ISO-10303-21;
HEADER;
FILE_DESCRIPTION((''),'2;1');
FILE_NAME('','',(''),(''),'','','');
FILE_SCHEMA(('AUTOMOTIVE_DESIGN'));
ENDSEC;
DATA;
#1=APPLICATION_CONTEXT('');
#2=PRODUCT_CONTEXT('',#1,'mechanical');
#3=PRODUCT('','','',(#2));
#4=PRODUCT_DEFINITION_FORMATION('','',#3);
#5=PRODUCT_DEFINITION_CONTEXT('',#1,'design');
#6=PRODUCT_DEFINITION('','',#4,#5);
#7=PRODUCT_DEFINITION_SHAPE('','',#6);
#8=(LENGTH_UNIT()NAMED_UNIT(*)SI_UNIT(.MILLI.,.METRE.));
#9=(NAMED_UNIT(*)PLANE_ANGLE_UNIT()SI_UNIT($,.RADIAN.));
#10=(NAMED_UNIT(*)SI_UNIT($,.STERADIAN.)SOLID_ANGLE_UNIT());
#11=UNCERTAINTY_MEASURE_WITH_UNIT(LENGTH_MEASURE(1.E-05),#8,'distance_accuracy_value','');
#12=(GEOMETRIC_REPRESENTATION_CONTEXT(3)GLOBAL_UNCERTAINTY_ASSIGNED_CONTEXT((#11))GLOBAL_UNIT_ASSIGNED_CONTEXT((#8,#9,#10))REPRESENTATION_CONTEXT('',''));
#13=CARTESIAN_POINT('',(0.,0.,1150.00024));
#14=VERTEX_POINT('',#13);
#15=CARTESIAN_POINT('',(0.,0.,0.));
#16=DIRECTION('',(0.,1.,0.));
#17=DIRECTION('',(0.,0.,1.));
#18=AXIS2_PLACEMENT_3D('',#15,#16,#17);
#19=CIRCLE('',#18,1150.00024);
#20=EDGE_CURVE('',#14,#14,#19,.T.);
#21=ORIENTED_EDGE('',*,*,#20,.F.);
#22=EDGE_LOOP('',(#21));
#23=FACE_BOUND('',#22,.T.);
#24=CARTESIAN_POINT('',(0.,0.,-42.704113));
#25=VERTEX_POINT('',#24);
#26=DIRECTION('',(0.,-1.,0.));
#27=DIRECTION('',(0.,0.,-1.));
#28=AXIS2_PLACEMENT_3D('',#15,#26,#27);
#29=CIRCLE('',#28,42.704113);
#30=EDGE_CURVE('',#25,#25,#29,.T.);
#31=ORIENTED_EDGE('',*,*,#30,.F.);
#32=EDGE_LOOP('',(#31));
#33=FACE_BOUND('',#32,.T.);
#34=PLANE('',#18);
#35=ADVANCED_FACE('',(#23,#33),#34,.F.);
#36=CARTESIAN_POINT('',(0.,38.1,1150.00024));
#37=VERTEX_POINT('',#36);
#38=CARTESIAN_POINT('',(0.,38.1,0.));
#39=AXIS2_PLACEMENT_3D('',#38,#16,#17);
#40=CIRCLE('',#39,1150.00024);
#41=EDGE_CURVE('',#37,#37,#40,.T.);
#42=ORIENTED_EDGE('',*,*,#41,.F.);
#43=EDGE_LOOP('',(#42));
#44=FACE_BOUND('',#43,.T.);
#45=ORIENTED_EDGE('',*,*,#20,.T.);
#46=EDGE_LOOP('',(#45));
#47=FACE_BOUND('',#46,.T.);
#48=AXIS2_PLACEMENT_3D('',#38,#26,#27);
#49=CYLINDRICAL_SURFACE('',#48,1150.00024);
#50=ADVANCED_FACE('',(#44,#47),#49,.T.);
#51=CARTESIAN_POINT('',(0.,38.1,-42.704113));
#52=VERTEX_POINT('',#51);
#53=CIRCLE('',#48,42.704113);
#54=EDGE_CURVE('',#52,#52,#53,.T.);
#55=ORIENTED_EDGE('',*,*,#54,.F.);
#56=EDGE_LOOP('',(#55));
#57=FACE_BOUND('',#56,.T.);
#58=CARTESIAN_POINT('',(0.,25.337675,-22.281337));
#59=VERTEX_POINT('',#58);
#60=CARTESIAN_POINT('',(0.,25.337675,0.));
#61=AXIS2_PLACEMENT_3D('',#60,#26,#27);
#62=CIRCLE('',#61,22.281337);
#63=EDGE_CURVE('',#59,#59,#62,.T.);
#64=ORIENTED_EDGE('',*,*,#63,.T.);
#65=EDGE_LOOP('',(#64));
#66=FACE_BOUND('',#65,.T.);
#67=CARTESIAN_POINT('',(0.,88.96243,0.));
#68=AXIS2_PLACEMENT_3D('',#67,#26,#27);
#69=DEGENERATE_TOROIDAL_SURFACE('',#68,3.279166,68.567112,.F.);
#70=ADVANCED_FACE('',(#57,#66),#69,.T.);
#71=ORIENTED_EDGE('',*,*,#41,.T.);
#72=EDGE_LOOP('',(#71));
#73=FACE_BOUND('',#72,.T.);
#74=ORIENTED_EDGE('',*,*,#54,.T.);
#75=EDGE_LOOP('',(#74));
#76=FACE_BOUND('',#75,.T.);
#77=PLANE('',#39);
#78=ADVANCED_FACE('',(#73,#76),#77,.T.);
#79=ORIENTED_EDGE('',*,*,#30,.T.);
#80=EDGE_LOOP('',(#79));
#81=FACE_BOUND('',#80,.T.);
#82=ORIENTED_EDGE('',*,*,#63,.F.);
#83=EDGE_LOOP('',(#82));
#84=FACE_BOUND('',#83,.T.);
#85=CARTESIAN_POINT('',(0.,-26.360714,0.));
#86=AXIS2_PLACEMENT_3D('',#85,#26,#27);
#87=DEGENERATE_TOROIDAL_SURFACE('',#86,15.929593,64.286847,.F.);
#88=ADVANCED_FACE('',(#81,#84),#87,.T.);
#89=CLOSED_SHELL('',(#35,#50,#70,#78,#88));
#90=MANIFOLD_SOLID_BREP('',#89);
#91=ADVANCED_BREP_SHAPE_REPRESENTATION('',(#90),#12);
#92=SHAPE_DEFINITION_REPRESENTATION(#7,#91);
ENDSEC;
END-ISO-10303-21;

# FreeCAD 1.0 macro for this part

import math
import FreeCAD as App
import Part
import Sketcher
Q = App.Units.Quantity

doc = App.newDocument("Part")
body = doc.addObject("PartDesign::Body", "Body")

# Sketch on XZ plane
sketch1 = body.newObject("Sketcher::SketchObject", "Sketch")
sketch1.AttachmentSupport = (doc.getObject("XZ_Plane"), [""])
sketch1.MapMode = "FlatFace"
sketch1.addGeometry(Part.Circle(App.Vector(0, 0, 0), App.Vector(0, 0, 1), 1150.00024), False)
sketch1.addConstraint(Sketcher.Constraint("Coincident", 0, 3, -1, 1))
sketch1.addConstraint(Sketcher.Constraint("Diameter", 0, Q("90.5512 in")))
pad1 = body.newObject("PartDesign::Pad", "Pad")
pad1.Profile = sketch1
pad1.Length = Q("1.5 in")
pad1.Reversed = True

# Sketch on XY plane
sketch2 = body.newObject("Sketcher::SketchObject", "Sketch001")
sketch2.AttachmentSupport = (doc.getObject("XY_Plane"), [""])
sketch2.MapMode = "FlatFace"
sketch2.addGeometry(Part.LineSegment(App.Vector(0, 38, 0), App.Vector(0, 0, 0)), False)
sketch2.addGeometry(Part.LineSegment(App.Vector(0, 0, 0), App.Vector(43, 0, 0)), False)
sketch2.addGeometry(Part.ArcOfCircle(Part.Circle(App.Vector(-16, -26, 0), App.Vector(0, 0, 1), 64), math.radians(24), math.radians(54)), False)
sketch2.addGeometry(Part.ArcOfCircle(Part.Circle(App.Vector(-3, 89, 0), App.Vector(0, 0, 1), 69), math.radians(-68), math.radians(-48)), False)
sketch2.addGeometry(Part.LineSegment(App.Vector(43, 38, 0), App.Vector(0, 38, 0)), False)
sketch2.addConstraint(Sketcher.Constraint("Coincident", 0, 2, 1, 1))
sketch2.addConstraint(Sketcher.Constraint("Coincident", 1, 2, 2, 1))
sketch2.addConstraint(Sketcher.Constraint("Coincident", 2, 2, 3, 1))
sketch2.addConstraint(Sketcher.Constraint("Coincident", 3, 2, 4, 1))
sketch2.addConstraint(Sketcher.Constraint("Coincident", 4, 2, 0, 1))
sketch2.addConstraint(Sketcher.Constraint("Vertical", 0))
sketch2.addConstraint(Sketcher.Constraint("Horizontal", 1))
sketch2.addConstraint(Sketcher.Constraint("Horizontal", 4))
sketch2.addConstraint(Sketcher.Constraint("Coincident", 0, 2, -1, 1))
sketch2.addConstraint(Sketcher.Constraint("Vertical", 1, 2, 3, 2))
sketch2.addConstraint(Sketcher.Constraint("DistanceY", 0, 2, 0, 1, Q("1.5 in")))
sketch2.addConstraint(Sketcher.Constraint("Radius", 3, 68.567112))
sketch2.addConstraint(Sketcher.Constraint("Radius", 2, 64.286847))
sketch2.addConstraint(Sketcher.Constraint("DistanceX", 1, 1, 1, 2, 42.704113))
sketch2.addConstraint(Sketcher.Constraint("DistanceY", -1, 1, 3, 3, 88.96243))
sketch2.addConstraint(Sketcher.Constraint("DistanceX", 2, 3, 2, 2, 38.21093))
groove = body.newObject("PartDesign::Groove", "Groove")
groove.Profile = sketch2
groove.ReferenceAxis = (sketch2, ["V_Axis"])
groove.Angle = 360

doc.recompute()
